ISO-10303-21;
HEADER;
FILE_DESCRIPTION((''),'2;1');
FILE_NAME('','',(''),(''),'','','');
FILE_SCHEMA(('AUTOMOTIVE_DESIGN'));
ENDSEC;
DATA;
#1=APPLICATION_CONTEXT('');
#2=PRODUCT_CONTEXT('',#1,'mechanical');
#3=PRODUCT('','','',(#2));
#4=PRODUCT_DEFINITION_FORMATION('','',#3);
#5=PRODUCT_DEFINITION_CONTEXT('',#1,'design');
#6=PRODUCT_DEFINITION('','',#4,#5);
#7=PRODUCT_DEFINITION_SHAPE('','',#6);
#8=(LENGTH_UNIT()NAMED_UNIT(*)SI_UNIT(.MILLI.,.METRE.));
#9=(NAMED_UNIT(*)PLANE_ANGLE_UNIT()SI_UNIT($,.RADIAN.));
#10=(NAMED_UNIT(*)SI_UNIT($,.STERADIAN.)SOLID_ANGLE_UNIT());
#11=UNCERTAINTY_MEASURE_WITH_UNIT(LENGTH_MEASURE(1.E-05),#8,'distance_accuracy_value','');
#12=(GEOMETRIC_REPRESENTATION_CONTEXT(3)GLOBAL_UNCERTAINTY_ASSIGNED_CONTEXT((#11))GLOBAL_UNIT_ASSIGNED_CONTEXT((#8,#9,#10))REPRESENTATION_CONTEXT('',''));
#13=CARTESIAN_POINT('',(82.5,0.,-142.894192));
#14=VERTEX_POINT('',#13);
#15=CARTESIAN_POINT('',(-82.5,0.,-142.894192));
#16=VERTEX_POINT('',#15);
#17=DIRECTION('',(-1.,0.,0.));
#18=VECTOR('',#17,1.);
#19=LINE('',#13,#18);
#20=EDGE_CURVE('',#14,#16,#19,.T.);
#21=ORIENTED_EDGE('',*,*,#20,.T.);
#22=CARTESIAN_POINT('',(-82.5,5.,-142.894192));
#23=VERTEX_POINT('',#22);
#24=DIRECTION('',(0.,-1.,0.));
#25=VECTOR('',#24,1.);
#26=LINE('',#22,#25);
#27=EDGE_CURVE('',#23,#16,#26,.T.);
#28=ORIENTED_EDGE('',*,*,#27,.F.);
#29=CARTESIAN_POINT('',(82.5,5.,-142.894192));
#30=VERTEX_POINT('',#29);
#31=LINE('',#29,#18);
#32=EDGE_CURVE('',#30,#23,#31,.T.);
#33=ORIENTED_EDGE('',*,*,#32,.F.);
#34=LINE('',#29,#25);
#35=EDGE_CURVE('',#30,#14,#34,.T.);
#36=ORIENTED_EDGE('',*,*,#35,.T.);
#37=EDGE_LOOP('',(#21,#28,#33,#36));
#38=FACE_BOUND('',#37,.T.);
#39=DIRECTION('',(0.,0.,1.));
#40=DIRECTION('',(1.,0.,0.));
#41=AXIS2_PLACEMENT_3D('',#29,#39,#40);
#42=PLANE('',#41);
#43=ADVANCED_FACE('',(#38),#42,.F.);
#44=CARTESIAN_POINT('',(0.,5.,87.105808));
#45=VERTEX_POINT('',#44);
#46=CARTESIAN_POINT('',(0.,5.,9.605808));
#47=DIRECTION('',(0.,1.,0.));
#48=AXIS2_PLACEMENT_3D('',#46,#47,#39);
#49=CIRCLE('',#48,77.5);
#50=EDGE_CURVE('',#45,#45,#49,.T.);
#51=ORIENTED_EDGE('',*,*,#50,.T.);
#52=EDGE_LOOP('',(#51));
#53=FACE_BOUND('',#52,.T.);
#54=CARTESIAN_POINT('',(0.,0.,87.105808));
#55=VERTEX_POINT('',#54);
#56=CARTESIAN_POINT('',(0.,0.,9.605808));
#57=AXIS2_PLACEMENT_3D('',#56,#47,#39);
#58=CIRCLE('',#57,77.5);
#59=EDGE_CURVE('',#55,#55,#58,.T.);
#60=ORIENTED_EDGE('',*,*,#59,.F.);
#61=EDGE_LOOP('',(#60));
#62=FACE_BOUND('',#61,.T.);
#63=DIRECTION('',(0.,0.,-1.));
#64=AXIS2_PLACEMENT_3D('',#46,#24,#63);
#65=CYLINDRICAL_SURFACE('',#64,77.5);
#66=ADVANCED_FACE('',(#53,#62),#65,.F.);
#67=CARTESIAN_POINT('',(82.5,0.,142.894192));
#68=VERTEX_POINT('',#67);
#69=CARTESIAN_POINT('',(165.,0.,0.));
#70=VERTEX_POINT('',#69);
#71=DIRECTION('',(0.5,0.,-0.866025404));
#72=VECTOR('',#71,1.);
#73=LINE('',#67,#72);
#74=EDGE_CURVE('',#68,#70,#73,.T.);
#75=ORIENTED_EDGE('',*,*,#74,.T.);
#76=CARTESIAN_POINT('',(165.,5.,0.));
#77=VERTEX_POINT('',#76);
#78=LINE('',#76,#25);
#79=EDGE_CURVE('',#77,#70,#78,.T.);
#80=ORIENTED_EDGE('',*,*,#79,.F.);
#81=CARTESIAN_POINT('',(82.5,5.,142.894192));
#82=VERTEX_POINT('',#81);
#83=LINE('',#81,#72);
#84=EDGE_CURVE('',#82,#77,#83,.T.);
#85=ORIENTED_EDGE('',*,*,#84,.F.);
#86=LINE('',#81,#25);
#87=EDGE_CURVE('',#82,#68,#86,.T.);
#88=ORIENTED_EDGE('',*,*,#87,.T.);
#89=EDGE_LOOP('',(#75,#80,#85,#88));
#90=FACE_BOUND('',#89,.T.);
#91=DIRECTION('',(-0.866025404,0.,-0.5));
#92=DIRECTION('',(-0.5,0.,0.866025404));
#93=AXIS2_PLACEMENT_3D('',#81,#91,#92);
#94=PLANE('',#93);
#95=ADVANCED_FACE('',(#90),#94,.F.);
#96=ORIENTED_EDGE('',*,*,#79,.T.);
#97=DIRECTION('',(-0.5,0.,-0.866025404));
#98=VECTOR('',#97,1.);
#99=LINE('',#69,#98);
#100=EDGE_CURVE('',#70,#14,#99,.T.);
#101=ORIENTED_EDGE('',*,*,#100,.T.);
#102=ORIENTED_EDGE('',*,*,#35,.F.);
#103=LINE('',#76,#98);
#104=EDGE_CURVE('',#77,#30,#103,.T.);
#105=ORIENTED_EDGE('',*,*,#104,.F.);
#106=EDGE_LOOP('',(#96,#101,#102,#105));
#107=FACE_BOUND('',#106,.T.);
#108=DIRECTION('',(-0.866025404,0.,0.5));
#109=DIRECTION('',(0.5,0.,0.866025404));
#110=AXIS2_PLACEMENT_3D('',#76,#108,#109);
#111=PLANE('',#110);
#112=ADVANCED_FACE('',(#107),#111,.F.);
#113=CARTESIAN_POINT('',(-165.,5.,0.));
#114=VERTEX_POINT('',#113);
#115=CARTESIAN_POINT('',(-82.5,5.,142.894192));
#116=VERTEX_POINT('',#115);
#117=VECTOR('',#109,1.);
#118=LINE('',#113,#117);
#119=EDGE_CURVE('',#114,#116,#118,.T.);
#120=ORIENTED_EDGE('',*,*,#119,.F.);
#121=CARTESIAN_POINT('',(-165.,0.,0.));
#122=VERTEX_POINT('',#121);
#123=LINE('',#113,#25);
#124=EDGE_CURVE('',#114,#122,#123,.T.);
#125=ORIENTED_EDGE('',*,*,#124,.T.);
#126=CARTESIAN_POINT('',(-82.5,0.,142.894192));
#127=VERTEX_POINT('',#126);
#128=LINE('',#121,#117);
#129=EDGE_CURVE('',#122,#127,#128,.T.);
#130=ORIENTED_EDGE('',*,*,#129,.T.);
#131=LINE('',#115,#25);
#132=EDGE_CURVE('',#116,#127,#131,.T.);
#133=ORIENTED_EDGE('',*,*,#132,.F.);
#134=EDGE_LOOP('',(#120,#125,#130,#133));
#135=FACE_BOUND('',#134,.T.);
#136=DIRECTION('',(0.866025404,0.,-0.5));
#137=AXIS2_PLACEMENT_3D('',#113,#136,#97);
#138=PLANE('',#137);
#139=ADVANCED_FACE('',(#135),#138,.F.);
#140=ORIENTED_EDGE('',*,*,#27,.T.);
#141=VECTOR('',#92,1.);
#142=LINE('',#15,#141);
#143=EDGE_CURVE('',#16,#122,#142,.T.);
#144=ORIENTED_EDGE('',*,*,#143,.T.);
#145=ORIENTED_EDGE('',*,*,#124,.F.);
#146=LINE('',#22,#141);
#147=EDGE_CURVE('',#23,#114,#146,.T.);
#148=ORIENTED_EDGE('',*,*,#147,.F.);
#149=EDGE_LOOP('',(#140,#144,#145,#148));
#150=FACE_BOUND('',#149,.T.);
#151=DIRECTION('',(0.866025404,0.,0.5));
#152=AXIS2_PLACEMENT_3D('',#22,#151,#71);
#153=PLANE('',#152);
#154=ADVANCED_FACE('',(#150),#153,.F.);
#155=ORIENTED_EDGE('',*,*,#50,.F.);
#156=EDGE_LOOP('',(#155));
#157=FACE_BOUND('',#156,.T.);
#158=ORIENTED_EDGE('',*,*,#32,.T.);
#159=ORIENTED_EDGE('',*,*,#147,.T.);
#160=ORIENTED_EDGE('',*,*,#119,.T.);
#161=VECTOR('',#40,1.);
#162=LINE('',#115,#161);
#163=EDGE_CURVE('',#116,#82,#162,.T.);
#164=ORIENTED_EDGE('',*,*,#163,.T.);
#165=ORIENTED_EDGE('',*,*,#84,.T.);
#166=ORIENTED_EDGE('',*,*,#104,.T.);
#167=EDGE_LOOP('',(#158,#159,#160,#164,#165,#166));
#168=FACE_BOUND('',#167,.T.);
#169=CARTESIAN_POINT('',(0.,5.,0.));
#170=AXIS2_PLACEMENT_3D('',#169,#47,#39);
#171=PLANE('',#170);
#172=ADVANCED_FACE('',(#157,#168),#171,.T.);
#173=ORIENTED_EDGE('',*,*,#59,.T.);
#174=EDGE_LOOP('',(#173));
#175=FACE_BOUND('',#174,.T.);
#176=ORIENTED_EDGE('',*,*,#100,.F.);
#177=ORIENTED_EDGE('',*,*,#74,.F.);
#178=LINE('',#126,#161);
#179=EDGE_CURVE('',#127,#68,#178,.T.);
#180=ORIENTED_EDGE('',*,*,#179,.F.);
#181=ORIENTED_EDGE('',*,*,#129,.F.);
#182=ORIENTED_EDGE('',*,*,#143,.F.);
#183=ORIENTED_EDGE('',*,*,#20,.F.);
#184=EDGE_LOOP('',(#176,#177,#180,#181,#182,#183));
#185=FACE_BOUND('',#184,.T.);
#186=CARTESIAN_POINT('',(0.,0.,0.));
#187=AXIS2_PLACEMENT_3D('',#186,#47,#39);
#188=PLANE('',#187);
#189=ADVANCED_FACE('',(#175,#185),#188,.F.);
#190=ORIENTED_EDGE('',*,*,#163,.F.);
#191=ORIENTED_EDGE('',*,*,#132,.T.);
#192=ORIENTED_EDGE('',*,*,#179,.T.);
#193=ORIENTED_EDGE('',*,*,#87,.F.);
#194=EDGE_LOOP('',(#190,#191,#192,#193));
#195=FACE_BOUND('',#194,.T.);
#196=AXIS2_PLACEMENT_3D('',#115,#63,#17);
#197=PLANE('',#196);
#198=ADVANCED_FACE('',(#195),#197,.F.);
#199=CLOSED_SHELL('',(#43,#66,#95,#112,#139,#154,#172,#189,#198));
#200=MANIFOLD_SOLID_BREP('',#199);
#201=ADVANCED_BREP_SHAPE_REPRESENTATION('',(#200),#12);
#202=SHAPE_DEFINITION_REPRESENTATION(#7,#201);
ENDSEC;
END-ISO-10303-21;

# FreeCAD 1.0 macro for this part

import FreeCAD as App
import Part
import Sketcher
from FreeCAD import Vector
Q = App.Units.Quantity

doc = App.newDocument("Part")
body = doc.addObject("PartDesign::Body", "Body")

sketch1 = body.newObject("Sketcher::SketchObject", "Sketch")
sketch1.AttachmentSupport = (doc.getObject("XZ_Plane"), [""])
sketch1.MapMode = "FlatFace"
sketch1.addGeometry(Part.LineSegment(Vector(165, 0, 0), Vector(82, -143, 0)), False)
sketch1.addGeometry(Part.LineSegment(Vector(82, -143, 0), Vector(-82, -143, 0)), False)
sketch1.addGeometry(Part.LineSegment(Vector(-82, -143, 0), Vector(-165, 0, 0)), False)
sketch1.addGeometry(Part.LineSegment(Vector(-165, 0, 0), Vector(-82, 143, 0)), False)
sketch1.addGeometry(Part.LineSegment(Vector(-82, 143, 0), Vector(82, 143, 0)), False)
sketch1.addGeometry(Part.LineSegment(Vector(82, 143, 0), Vector(165, 0, 0)), False)
sketch1.addGeometry(Part.Circle(Vector(0, 10, 0), Vector(0, 0, 1), 78), False)
sketch1.addConstraint(Sketcher.Constraint("Coincident", 0, 2, 1, 1))
sketch1.addConstraint(Sketcher.Constraint("Coincident", 1, 2, 2, 1))
sketch1.addConstraint(Sketcher.Constraint("Coincident", 2, 2, 3, 1))
sketch1.addConstraint(Sketcher.Constraint("Coincident", 3, 2, 4, 1))
sketch1.addConstraint(Sketcher.Constraint("Coincident", 4, 2, 5, 1))
sketch1.addConstraint(Sketcher.Constraint("Coincident", 5, 2, 0, 1))
sketch1.addConstraint(Sketcher.Constraint("Horizontal", 1))
sketch1.addConstraint(Sketcher.Constraint("Horizontal", 4))
sketch1.addConstraint(Sketcher.Constraint("Symmetric", 0, 2, 3, 2, -1, 1))
sketch1.addConstraint(Sketcher.Constraint("Symmetric", 2, 2, 5, 2, -1, 1))
sketch1.addConstraint(Sketcher.Constraint("PointOnObject", 6, 3, -2))
sketch1.addConstraint(Sketcher.Constraint("PointOnObject", 2, 2, -1))
sketch1.addConstraint(Sketcher.Constraint("Parallel", 2, 5))
sketch1.addConstraint(Sketcher.Constraint("Vertical", 1, 2, 3, 2))
sketch1.addConstraint(Sketcher.Constraint("Diameter", 6, Q("155 mm")))
sketch1.addConstraint(Sketcher.Constraint("DistanceX", 1, 2, 1, 1, Q("165 mm")))
sketch1.addConstraint(Sketcher.Constraint("Angle", 0, Q("-120 deg")))
sketch1.addConstraint(Sketcher.Constraint("Distance", 0, Q("165 mm")))
sketch1.addConstraint(Sketcher.Constraint("DistanceY", 0, 2, 6, 3, Q("152.5 mm")))
pad1 = body.newObject("PartDesign::Pad", "Pad")
pad1.Profile = sketch1
pad1.Length = 5
pad1.Reversed = True

doc.recompute()
